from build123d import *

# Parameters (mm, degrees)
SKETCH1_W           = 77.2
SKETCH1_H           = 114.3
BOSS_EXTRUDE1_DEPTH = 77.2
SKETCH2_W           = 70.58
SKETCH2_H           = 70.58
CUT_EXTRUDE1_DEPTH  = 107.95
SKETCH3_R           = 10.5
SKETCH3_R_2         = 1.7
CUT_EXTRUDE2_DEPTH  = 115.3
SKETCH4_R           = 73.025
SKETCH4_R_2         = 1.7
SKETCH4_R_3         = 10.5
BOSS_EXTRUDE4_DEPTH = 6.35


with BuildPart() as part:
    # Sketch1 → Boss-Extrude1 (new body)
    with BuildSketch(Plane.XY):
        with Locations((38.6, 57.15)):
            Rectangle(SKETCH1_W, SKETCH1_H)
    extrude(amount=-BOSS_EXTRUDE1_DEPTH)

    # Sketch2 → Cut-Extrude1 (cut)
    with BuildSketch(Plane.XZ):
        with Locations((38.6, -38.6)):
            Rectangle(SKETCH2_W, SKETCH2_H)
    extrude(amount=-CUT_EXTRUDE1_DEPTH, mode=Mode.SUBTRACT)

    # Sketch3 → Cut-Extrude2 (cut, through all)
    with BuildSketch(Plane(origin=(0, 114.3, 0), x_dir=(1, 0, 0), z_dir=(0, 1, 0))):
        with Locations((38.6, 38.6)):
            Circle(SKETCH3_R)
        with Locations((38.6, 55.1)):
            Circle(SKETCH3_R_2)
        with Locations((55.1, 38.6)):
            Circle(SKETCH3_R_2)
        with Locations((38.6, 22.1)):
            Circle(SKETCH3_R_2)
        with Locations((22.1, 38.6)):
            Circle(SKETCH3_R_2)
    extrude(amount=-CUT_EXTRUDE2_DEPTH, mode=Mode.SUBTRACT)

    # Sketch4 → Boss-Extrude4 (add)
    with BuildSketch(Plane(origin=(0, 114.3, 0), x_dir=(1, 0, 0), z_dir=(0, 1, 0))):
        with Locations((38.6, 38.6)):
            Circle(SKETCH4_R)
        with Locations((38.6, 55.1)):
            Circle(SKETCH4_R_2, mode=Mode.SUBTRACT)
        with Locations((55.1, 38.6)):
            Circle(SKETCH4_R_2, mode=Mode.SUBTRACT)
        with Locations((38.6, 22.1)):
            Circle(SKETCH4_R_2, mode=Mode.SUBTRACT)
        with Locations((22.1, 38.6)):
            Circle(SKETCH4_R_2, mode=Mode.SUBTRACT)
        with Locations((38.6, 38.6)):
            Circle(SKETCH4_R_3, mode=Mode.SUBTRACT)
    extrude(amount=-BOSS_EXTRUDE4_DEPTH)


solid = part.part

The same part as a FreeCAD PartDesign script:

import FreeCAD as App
import Part
import Sketcher
from FreeCAD import Vector


def add_polygon(sketch, points):
    """Adds a closed chain of lines whose ends are joined by coincident constraints."""
    first, n = sketch.GeometryCount, len(points)
    for a, b in zip(points, points[1:] + points[:1]):
        sketch.addGeometry(Part.LineSegment(App.Vector(*a, 0), App.Vector(*b, 0)), False)
    for i in range(n):
        sketch.addConstraint(Sketcher.Constraint("Coincident", first + i, 2, first + (i + 1) % n, 1))

doc = App.newDocument("Part")
params = doc.addObject("Spreadsheet::Sheet", "Params")
for row, (alias, value) in enumerate([
    ("sketch1_width", "77.2 mm"),
    ("sketch1_height", "114.3 mm"),
    ("pad1_length", "77.2 mm"),
    ("sketch2_width", "70.58 mm"),
    ("pocket1_length", "107.95 mm"),
    ("sketch3_diameter", "21 mm"),
    ("sketch3_diameter2", "3.4 mm"),
    ("sketch4_diameter", "21 mm"),
    ("sketch4_diameter2", "3.4 mm"),
    ("sketch4_diameter3", "146.05 mm"),
    ("pad2_length", "6.35 mm"),
], start=1):
    params.set(f"A{row}", alias)
    params.set(f"B{row}", "=" + value)
    params.setAlias(f"B{row}", alias)

body = doc.addObject("PartDesign::Body", "Body")

sketch1 = body.newObject("Sketcher::SketchObject", "Sketch")
sketch1.AttachmentSupport = (doc.getObject("XY_Plane"), [""])
sketch1.MapMode = "FlatFace"
add_polygon(sketch1, [(0, 114), (0, 0), (77, 0), (77, 114)])
sketch1.addConstraint(Sketcher.Constraint("Vertical", 0))
sketch1.addConstraint(Sketcher.Constraint("Horizontal", 1))
sketch1.addConstraint(Sketcher.Constraint("Vertical", 2))
sketch1.addConstraint(Sketcher.Constraint("Horizontal", 3))
sketch1.addConstraint(Sketcher.Constraint("Coincident", 0, 2, -1, 1))
sketch1.addConstraint(Sketcher.Constraint("DistanceX", 1, 1, 1, 2, 77.2))
sketch1.addConstraint(Sketcher.Constraint("DistanceY", 0, 2, 0, 1, 114.3))
sketch1.setExpression("Constraints[9]", "Params.sketch1_width")
sketch1.setExpression("Constraints[10]", "Params.sketch1_height")
pad1 = body.newObject("PartDesign::Pad", "Pad")
pad1.Profile = sketch1
pad1.setExpression("Length", "Params.pad1_length")
pad1.Reversed = True

sketch2 = body.newObject("Sketcher::SketchObject", "Sketch001")
sketch2.AttachmentSupport = (doc.getObject("XZ_Plane"), [""])
sketch2.MapMode = "FlatFace"
add_polygon(sketch2, [(3, -3), (3, -74), (74, -74), (74, -3)])
sketch2.addConstraint(Sketcher.Constraint("Vertical", 0))
sketch2.addConstraint(Sketcher.Constraint("Horizontal", 1))
sketch2.addConstraint(Sketcher.Constraint("Vertical", 2))
sketch2.addConstraint(Sketcher.Constraint("Horizontal", 3))
sketch2.addConstraint(Sketcher.Constraint("Equal", 3, 0))
sketch2.addConstraint(Sketcher.Constraint("DistanceX", 1, 1, 1, 2, 70.58))
sketch2.addConstraint(Sketcher.Constraint("DistanceX", -1, 1, 0, 2, 3.31))
sketch2.addConstraint(Sketcher.Constraint("DistanceY", 0, 2, -1, 1, 73.89))
sketch2.setExpression("Constraints[9]", "Params.sketch2_width")
pocket1 = body.newObject("PartDesign::Pocket", "Pocket")
pocket1.Profile = sketch2
pocket1.setExpression("Length", "Params.pocket1_length")

sketch3 = body.newObject("Sketcher::SketchObject", "Sketch002")
sketch3.AttachmentSupport = (doc.getObject("XZ_Plane"), [""])
sketch3.MapMode = "FlatFace"
sketch3.AttachmentOffset = App.Placement(Vector(0, 0, -114.3), App.Rotation())
sketch3.addGeometry(Part.Circle(Vector(38.6, -38.6, 0), Vector(0, 0, 1), 10.5), False)
sketch3.addGeometry(Part.Circle(Vector(38.6, -55.1, 0), Vector(0, 0, 1), 1.7), False)
sketch3.addGeometry(Part.Circle(Vector(55.1, -38.6, 0), Vector(0, 0, 1), 1.7), False)
sketch3.addGeometry(Part.Circle(Vector(38.6, -22.1, 0), Vector(0, 0, 1), 1.7), False)
sketch3.addGeometry(Part.Circle(Vector(22.1, -38.6, 0), Vector(0, 0, 1), 1.7), False)
sketch3.addConstraint(Sketcher.Constraint("Equal", 1, 2))
sketch3.addConstraint(Sketcher.Constraint("Equal", 2, 3))
sketch3.addConstraint(Sketcher.Constraint("Equal", 3, 4))
sketch3.addConstraint(Sketcher.Constraint("Horizontal", 0, 3, 2, 3))
sketch3.addConstraint(Sketcher.Constraint("Horizontal", 2, 3, 4, 3))
sketch3.addConstraint(Sketcher.Constraint("Vertical", 0, 3, 1, 3))
sketch3.addConstraint(Sketcher.Constraint("Vertical", 1, 3, 3, 3))
sketch3.addConstraint(Sketcher.Constraint("Diameter", 0, 21.0))
sketch3.addConstraint(Sketcher.Constraint("Diameter", 1, 3.4))
sketch3.addConstraint(Sketcher.Constraint("DistanceY", 1, 3, 3, 3, 33.0))
sketch3.addConstraint(Sketcher.Constraint("DistanceX", 4, 3, 2, 3, 33.0))
sketch3.addConstraint(Sketcher.Constraint("DistanceX", -1, 1, 0, 3, 38.6))
sketch3.addConstraint(Sketcher.Constraint("DistanceY", 0, 3, -1, 1, 38.6))
sketch3.addConstraint(Sketcher.Constraint("DistanceY", 1, 3, -1, 1, 55.1))
sketch3.addConstraint(Sketcher.Constraint("DistanceX", -1, 1, 2, 3, 55.1))
sketch3.setExpression("Constraints[7]", "Params.sketch3_diameter")
sketch3.setExpression("Constraints[8]", "Params.sketch3_diameter2")
pocket2 = body.newObject("PartDesign::Pocket", "Pocket001")
pocket2.Profile = sketch3
pocket2.Type = "ThroughAll"
pocket2.Reversed = True

sketch4 = body.newObject("Sketcher::SketchObject", "Sketch003")
sketch4.AttachmentSupport = (doc.getObject("XZ_Plane"), [""])
sketch4.MapMode = "FlatFace"
sketch4.AttachmentOffset = App.Placement(Vector(0, 0, -114.3), App.Rotation())
sketch4.addGeometry(Part.Circle(Vector(38.6, -38.6, 0), Vector(0, 0, 1), 73), False)
sketch4.addGeometry(Part.Circle(Vector(38.6, -22.1, 0), Vector(0, 0, 1), 1.7), False)
sketch4.addGeometry(Part.Circle(Vector(22.1, -38.6, 0), Vector(0, 0, 1), 1.7), False)
sketch4.addGeometry(Part.Circle(Vector(38.6, -55.1, 0), Vector(0, 0, 1), 1.7), False)
sketch4.addGeometry(Part.Circle(Vector(38.6, -38.6, 0), Vector(0, 0, 1), 10.5), False)
sketch4.addGeometry(Part.Circle(Vector(55.1, -38.6, 0), Vector(0, 0, 1), 1.7), False)
sketch4.addConstraint(Sketcher.Constraint("Coincident", 4, 3, 0, 3))
sketch4.addConstraint(Sketcher.Constraint("Equal", 1, 2))
sketch4.addConstraint(Sketcher.Constraint("Equal", 2, 3))
sketch4.addConstraint(Sketcher.Constraint("Equal", 3, 5))
sketch4.addConstraint(Sketcher.Constraint("Horizontal", 0, 3, 2, 3))
sketch4.addConstraint(Sketcher.Constraint("Horizontal", 4, 3, 5, 3))
sketch4.addConstraint(Sketcher.Constraint("Vertical", 0, 3, 1, 3))
sketch4.addConstraint(Sketcher.Constraint("Vertical", 1, 3, 3, 3))
sketch4.addConstraint(Sketcher.Constraint("Diameter", 4, 21.0))
sketch4.addConstraint(Sketcher.Constraint("Diameter", 1, 3.4))
sketch4.addConstraint(Sketcher.Constraint("Diameter", 0, 146.05))
sketch4.addConstraint(Sketcher.Constraint("DistanceY", 3, 3, 1, 3, 33.0))
sketch4.addConstraint(Sketcher.Constraint("DistanceX", 2, 3, 5, 3, 33.0))
sketch4.addConstraint(Sketcher.Constraint("DistanceX", -1, 1, 0, 3, 38.6))
sketch4.addConstraint(Sketcher.Constraint("DistanceY", 0, 3, -1, 1, 38.6))
sketch4.addConstraint(Sketcher.Constraint("DistanceY", 1, 3, -1, 1, 22.1))
sketch4.addConstraint(Sketcher.Constraint("DistanceX", -1, 1, 2, 3, 22.1))
sketch4.setExpression("Constraints[8]", "Params.sketch4_diameter")
sketch4.setExpression("Constraints[9]", "Params.sketch4_diameter2")
sketch4.setExpression("Constraints[10]", "Params.sketch4_diameter3")
pad2 = body.newObject("PartDesign::Pad", "Pad001")
pad2.Profile = sketch4
pad2.setExpression("Length", "Params.pad2_length")

doc.recompute()
